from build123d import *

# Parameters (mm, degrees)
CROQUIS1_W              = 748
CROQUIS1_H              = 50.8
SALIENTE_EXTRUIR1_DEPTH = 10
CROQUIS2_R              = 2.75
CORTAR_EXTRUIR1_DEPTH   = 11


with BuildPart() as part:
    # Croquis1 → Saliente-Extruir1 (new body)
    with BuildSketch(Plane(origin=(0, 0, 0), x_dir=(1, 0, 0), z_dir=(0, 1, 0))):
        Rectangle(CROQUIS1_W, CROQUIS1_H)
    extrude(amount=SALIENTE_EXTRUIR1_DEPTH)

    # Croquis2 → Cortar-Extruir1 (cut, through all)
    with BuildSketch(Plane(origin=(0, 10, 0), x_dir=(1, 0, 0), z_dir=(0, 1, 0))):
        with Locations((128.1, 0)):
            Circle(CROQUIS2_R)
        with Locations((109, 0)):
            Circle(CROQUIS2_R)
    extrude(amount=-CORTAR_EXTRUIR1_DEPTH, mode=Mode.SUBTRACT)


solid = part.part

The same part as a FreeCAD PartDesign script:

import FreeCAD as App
import Part
import Sketcher


def add_polygon(sketch, points):
    """Adds a closed chain of lines whose ends are joined by coincident constraints."""
    first, n = sketch.GeometryCount, len(points)
    for a, b in zip(points, points[1:] + points[:1]):
        sketch.addGeometry(Part.LineSegment(App.Vector(*a, 0), App.Vector(*b, 0)), False)
    for i in range(n):
        sketch.addConstraint(Sketcher.Constraint("Coincident", first + i, 2, first + (i + 1) % n, 1))

doc = App.newDocument("Part")
params = doc.addObject("Spreadsheet::Sheet", "Params")
for row, (alias, value) in enumerate([
    ("sketch1_width", "748 mm"),
    ("sketch1_height", "50.8 mm"),
    ("pad1_length", "10 mm"),
    ("sketch2_diameter", "5.5 mm"),
], start=1):
    params.set(f"A{row}", alias)
    params.set(f"B{row}", "=" + value)
    params.setAlias(f"B{row}", alias)

body = doc.addObject("PartDesign::Body", "Body")

sketch1 = doc.addObject("Sketcher::SketchObject", "Sketch")
body.addObject(sketch1)
sketch1.AttachmentSupport = (doc.XZ_Plane, [""])
sketch1.MapMode = "FlatFace"
add_polygon(sketch1, [(-374, -25.4), (-374, 25.4), (374, 25.4), (374, -25.4)])
sketch1.addConstraint([
    Sketcher.Constraint("Vertical", 0),
    Sketcher.Constraint("Horizontal", 1),
    Sketcher.Constraint("Vertical", 2),
    Sketcher.Constraint("Horizontal", 3),
    Sketcher.Constraint("Symmetric", 0, 2, 2, 2, -1, 1),
    Sketcher.Constraint("DistanceX", 1, 1, 1, 2, 748.0),
    Sketcher.Constraint("DistanceY", 0, 1, 0, 2, 50.8),
])
sketch1.setExpression("Constraints[9]", "Params.sketch1_width")
sketch1.setExpression("Constraints[10]", "Params.sketch1_height")
pad1 = doc.addObject("PartDesign::Pad", "Pad")
body.addObject(pad1)
pad1.Profile = sketch1
pad1.setExpression("Length", "Params.pad1_length")
pad1.Reversed = True

sketch2 = doc.addObject("Sketcher::SketchObject", "Sketch001")
body.addObject(sketch2)
sketch2.AttachmentSupport = (doc.XZ_Plane, [""])
sketch2.MapMode = "FlatFace"
sketch2.AttachmentOffset = App.Placement(App.Vector(0, 0, -10), App.Rotation())
sketch2.addGeometry([
    Part.Circle(App.Vector(128.1, 0, 0), App.Vector(0, 0, 1), 2.75),
    Part.Circle(App.Vector(109, 0, 0), App.Vector(0, 0, 1), 2.75),
], False)
sketch2.addConstraint([
    Sketcher.Constraint("Equal", 0, 1),
    Sketcher.Constraint("PointOnObject", 0, 3, -1),
    Sketcher.Constraint("PointOnObject", 1, 3, -1),
    Sketcher.Constraint("Diameter", 0, 5.5),
    Sketcher.Constraint("DistanceX", -1, 1, 1, 3, 109.0),
    Sketcher.Constraint("DistanceX", -1, 1, 0, 3, 128.1),
])
sketch2.setExpression("Constraints[3]", "Params.sketch2_diameter")
pocket1 = doc.addObject("PartDesign::Pocket", "Pocket")
body.addObject(pocket1)
pocket1.Profile = sketch2
pocket1.Type = "ThroughAll"
pocket1.Reversed = True

doc.recompute()
